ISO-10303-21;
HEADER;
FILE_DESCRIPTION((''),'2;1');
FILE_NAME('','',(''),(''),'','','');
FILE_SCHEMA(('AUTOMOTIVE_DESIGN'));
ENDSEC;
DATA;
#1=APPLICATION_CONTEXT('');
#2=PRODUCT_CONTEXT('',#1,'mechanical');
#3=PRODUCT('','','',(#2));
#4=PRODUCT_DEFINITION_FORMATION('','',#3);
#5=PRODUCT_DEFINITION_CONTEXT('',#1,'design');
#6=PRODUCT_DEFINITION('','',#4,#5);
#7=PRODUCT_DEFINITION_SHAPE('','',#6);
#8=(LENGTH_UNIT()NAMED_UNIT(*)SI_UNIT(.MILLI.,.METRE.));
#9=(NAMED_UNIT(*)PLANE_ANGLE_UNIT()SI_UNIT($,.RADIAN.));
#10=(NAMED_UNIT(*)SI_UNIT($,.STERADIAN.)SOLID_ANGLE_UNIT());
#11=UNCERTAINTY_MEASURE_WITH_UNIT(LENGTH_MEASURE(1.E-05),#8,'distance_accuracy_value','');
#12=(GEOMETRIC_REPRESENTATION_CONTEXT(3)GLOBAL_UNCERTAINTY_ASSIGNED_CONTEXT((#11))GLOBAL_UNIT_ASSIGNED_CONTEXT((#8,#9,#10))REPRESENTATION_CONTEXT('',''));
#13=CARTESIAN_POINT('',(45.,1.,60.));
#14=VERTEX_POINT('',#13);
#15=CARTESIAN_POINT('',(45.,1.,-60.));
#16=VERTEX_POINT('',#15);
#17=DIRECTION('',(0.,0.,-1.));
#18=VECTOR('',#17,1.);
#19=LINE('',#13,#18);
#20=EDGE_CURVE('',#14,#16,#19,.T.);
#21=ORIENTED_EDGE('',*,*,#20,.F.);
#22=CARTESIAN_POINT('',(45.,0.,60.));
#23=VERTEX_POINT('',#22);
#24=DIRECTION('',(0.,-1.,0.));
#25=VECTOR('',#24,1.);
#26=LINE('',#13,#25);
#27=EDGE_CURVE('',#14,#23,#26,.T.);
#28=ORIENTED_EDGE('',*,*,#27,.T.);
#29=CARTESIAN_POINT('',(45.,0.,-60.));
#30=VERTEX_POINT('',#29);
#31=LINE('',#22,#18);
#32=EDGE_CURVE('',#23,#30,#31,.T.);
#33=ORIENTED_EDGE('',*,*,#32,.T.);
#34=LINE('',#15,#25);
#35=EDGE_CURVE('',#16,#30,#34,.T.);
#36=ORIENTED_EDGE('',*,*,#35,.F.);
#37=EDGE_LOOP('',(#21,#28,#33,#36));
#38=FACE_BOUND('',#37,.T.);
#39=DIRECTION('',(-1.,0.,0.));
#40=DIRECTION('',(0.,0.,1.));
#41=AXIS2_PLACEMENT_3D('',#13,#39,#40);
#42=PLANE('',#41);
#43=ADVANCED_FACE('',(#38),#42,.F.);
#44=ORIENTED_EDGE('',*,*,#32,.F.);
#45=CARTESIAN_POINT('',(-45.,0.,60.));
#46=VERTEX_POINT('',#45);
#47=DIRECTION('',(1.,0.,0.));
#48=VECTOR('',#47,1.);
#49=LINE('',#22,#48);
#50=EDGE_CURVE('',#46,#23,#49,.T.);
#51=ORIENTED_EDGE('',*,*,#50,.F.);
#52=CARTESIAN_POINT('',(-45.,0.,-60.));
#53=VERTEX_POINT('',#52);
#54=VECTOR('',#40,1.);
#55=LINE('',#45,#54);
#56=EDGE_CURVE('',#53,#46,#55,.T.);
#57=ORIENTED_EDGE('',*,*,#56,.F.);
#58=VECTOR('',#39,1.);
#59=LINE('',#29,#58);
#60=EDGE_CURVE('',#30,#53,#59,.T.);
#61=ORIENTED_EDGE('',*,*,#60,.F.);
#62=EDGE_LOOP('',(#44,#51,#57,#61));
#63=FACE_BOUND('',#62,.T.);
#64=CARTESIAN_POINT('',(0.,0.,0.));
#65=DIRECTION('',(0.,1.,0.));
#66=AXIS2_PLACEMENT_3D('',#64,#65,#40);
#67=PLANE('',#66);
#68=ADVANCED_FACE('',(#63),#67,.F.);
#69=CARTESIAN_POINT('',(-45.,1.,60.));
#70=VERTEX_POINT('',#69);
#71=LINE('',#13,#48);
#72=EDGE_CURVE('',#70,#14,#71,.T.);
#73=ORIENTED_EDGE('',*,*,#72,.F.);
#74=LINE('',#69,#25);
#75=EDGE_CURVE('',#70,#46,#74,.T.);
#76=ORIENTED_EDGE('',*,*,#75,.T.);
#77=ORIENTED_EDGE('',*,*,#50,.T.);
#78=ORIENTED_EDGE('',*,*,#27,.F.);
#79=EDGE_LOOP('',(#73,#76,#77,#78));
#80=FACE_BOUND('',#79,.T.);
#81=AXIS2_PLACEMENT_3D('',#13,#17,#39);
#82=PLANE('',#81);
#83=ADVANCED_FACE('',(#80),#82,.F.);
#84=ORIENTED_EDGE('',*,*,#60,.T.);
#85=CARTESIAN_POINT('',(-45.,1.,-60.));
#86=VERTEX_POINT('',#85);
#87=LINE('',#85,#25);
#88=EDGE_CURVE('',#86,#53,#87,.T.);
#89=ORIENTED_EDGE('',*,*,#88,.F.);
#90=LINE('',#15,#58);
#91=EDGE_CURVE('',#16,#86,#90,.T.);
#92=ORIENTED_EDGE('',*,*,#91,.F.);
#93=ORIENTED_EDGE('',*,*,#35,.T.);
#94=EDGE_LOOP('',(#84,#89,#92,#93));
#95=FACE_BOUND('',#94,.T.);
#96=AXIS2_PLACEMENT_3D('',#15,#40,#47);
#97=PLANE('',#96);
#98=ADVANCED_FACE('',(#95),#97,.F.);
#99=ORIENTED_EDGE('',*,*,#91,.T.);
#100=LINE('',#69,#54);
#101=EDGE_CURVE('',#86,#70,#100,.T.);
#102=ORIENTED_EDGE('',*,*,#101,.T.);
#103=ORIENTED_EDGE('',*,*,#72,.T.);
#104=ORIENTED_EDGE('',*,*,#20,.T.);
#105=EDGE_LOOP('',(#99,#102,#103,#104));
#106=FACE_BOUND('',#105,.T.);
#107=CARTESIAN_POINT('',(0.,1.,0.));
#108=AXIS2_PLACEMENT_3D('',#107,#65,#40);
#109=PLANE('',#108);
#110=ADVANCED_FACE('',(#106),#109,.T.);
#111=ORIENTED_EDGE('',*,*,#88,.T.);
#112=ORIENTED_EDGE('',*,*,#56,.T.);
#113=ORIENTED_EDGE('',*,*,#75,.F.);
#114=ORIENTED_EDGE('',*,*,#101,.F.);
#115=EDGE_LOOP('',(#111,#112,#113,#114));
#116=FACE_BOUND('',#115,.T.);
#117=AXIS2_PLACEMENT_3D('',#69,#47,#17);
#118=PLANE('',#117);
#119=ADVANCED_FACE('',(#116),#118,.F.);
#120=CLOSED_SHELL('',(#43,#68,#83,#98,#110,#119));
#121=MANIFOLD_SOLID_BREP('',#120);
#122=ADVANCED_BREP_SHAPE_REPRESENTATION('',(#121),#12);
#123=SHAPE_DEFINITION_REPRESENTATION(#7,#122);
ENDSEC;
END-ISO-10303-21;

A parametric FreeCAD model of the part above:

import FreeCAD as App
import Part
import Sketcher
Q = App.Units.Quantity


def add_polygon(sketch, points):
    """Adds a closed chain of lines whose ends are joined by coincident constraints."""
    first, n = sketch.GeometryCount, len(points)
    for a, b in zip(points, points[1:] + points[:1]):
        sketch.addGeometry(Part.LineSegment(App.Vector(*a, 0), App.Vector(*b, 0)), False)
    for i in range(n):
        sketch.addConstraint(Sketcher.Constraint("Coincident", first + i, 2, first + (i + 1) % n, 1))

doc = App.newDocument("Part")
body = doc.addObject("PartDesign::Body", "Body")

sketch1 = body.newObject("Sketcher::SketchObject", "Sketch")
sketch1.AttachmentSupport = (doc.getObject("XZ_Plane"), [""])
sketch1.MapMode = "FlatFace"
add_polygon(sketch1, [(-45, -60), (-45, 60), (45, 60), (45, -60)])
sketch1.addConstraint(Sketcher.Constraint("Vertical", 0))
sketch1.addConstraint(Sketcher.Constraint("Horizontal", 1))
sketch1.addConstraint(Sketcher.Constraint("Vertical", 2))
sketch1.addConstraint(Sketcher.Constraint("Horizontal", 3))
sketch1.addConstraint(Sketcher.Constraint("Symmetric", 0, 2, 2, 2, -1, 1))
sketch1.addConstraint(Sketcher.Constraint("DistanceX", 1, 1, 1, 2, Q("90 mm")))
sketch1.addConstraint(Sketcher.Constraint("DistanceY", 0, 1, 0, 2, Q("120 mm")))
pad1 = body.newObject("PartDesign::Pad", "Pad")
pad1.Profile = sketch1
pad1.Length = 1
pad1.Reversed = True

doc.recompute()
